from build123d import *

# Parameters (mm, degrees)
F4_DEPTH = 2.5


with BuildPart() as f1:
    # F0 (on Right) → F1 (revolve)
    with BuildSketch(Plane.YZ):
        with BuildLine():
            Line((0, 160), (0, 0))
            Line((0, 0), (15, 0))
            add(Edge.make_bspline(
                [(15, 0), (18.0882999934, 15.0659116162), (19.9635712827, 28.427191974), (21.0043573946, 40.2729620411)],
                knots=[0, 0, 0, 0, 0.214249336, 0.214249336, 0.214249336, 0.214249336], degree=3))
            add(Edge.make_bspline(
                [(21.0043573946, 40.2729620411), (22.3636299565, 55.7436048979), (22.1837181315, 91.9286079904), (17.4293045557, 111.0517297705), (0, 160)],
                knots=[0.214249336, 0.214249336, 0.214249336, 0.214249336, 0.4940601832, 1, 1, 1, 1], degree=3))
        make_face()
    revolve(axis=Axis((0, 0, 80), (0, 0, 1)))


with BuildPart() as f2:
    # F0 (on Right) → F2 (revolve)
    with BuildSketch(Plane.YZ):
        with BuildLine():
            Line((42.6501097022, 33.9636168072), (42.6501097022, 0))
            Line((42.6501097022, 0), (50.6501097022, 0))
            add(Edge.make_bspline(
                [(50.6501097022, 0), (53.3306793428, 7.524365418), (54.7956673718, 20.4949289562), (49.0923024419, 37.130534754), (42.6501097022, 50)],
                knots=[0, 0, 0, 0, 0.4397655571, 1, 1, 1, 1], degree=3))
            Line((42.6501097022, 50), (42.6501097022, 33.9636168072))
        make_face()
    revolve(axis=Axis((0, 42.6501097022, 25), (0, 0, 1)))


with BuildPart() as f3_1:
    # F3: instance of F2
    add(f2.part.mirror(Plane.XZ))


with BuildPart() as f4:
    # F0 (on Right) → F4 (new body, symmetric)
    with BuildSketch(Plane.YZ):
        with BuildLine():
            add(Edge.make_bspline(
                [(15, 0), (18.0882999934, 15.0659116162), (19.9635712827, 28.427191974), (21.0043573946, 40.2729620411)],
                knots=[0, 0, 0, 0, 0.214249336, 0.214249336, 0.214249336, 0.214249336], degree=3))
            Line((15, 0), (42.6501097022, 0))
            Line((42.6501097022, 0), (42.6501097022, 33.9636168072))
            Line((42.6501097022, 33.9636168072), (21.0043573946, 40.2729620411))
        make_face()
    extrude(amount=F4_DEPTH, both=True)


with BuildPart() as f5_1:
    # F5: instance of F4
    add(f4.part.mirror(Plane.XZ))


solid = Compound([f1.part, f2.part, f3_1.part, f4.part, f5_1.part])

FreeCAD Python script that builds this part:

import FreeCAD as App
import Part
import Sketcher

V = App.Vector
Q = App.Units.Quantity

doc = App.newDocument("Part")
body = doc.addObject("PartDesign::Body", "Body")

# Sketch on YZ plane
sketch1 = doc.addObject("Sketcher::SketchObject", "Sketch")
body.addObject(sketch1)
sketch1.AttachmentSupport = (doc.YZ_Plane, [""])
sketch1.MapMode = "FlatFace"
sketch1.addGeometry([
    Part.LineSegment(V(0, 160, 0), V(0, 0, 0)),
    Part.LineSegment(V(0, 0, 0), V(15, 0, 0)),
    Part.BSplineCurve([V(15, 0, 0), V(18.0883, 15.065912, 0), V(19.963571, 28.427192, 0), V(21.004357, 40.272962, 0)], [4, 4], [0, 0.214249336], False, 3, [1, 1, 1, 1], False),
    Part.BSplineCurve([V(21.004357, 40.272962, 0), V(22.36363, 55.743605, 0), V(22.183718, 91.928608, 0), V(17.429305, 111.05173, 0), V(0, 160, 0)], [4, 1, 4], [0.214249336, 0.494060183, 1], False, 3, [1, 1, 1, 1, 1], False),
], False)
sketch1.addConstraint([
    Sketcher.Constraint("Block", 2),
    Sketcher.Constraint("Block", 3),
    Sketcher.Constraint("Coincident", 0, 2, 1, 1),
    Sketcher.Constraint("Coincident", 1, 2, 2, 1),
    Sketcher.Constraint("Coincident", 3, 2, 0, 1),
    Sketcher.Constraint("Vertical", 0),
    Sketcher.Constraint("Horizontal", 1),
])
revolution = doc.addObject("PartDesign::Revolution", "Revolution")
body.addObject(revolution)
revolution.Profile = sketch1
revolution.ReferenceAxis = (sketch1, ["V_Axis"])
revolution.Angle = 360
body2 = doc.addObject("PartDesign::Body", "Body001")

# Sketch on YZ plane
sketch2 = doc.addObject("Sketcher::SketchObject", "Sketch001")
body2.addObject(sketch2)
sketch2.AttachmentSupport = (doc.getObject("YZ_Plane001"), [""])
sketch2.MapMode = "FlatFace"
sketch2.addGeometry([
    Part.LineSegment(V(42.65011, 0, 0), V(50.65011, 0, 0)),
    Part.BSplineCurve([V(50.65011, 0, 0), V(53.330679, 7.524365, 0), V(54.795667, 20.494929, 0), V(49.092302, 37.130535, 0), V(42.65011, 50, 0)], [4, 1, 4], [0, 0.439765557, 1], False, 3, [1, 1, 1, 1, 1], False),
    Part.LineSegment(V(42.65011, 50, 0), V(42.65011, 0, 0)),
], False)
sketch2.addGeometry(Part.LineSegment(V(42.65011, 0, 0), V(42.65011, 50, 0)), True)  # axis
sketch2.addConstraint([
    Sketcher.Constraint("Block", 1),
    Sketcher.Constraint("Coincident", 0, 2, 1, 1),
    Sketcher.Constraint("Coincident", 1, 2, 2, 1),
    Sketcher.Constraint("Coincident", 2, 2, 0, 1),
    Sketcher.Constraint("Horizontal", 0),
    Sketcher.Constraint("Vertical", 2),
    Sketcher.Constraint("Vertical", 3),
    Sketcher.Constraint("Coincident", 3, 1, 2, 2),
    Sketcher.Constraint("Equal", 2, 3),
])
revolution2 = doc.addObject("PartDesign::Revolution", "Revolution001")
body2.addObject(revolution2)
revolution2.Profile = sketch2
revolution2.ReferenceAxis = (sketch2, ["Axis0"])
revolution2.Angle = 360
body3 = doc.addObject("PartDesign::Body", "Body002")
doc.recompute()

mirroring = doc.addObject("Part::Mirroring", "Mirroring")
mirroring.Source = body2
mirroring.Base = V(0, 0, 0)
mirroring.Normal = V(0, -1, 0)
body3.BaseFeature = mirroring
doc.recompute()
body4 = doc.addObject("PartDesign::Body", "Body003")

# Sketch on YZ plane
sketch3 = doc.addObject("Sketcher::SketchObject", "Sketch002")
body4.addObject(sketch3)
sketch3.AttachmentSupport = (doc.getObject("YZ_Plane003"), [""])
sketch3.MapMode = "FlatFace"
sketch3.addGeometry([
    Part.BSplineCurve([V(15, 0, 0), V(18.0883, 15.065912, 0), V(19.963571, 28.427192, 0), V(21.004357, 40.272962, 0)], [4, 4], [0, 0.214249336], False, 3, [1, 1, 1, 1], False),
    Part.LineSegment(V(15, 0, 0), V(42.65011, 0, 0)),
    Part.LineSegment(V(42.65011, 0, 0), V(42.65011, 33.963617, 0)),
    Part.LineSegment(V(42.65011, 33.963617, 0), V(21.004357, 40.272962, 0)),
], False)
sketch3.addConstraint([
    Sketcher.Constraint("Block", 0),
    Sketcher.Constraint("Coincident", 0, 1, 1, 1),
    Sketcher.Constraint("Coincident", 1, 2, 2, 1),
    Sketcher.Constraint("Coincident", 2, 2, 3, 1),
    Sketcher.Constraint("Coincident", 3, 2, 0, 2),
    Sketcher.Constraint("Horizontal", 1),
    Sketcher.Constraint("Vertical", 2),
    Sketcher.Constraint("DistanceX", 1, 1, 1, 2, Q("27.65011 mm")),
    Sketcher.Constraint("Distance", 3, Q("22.546539 mm")),
])
pad1 = doc.addObject("PartDesign::Pad", "Pad")
body4.addObject(pad1)
pad1.Profile = sketch3
pad1.Length = 5
pad1.Midplane = True
body5 = doc.addObject("PartDesign::Body", "Body004")
doc.recompute()

mirroring2 = doc.addObject("Part::Mirroring", "Mirroring001")
mirroring2.Source = body4
mirroring2.Base = V(0, 0, 0)
mirroring2.Normal = V(0, -1, 0)
body5.BaseFeature = mirroring2
doc.recompute()
mirroring.Visibility = False
mirroring2.Visibility = False

doc.recompute()
